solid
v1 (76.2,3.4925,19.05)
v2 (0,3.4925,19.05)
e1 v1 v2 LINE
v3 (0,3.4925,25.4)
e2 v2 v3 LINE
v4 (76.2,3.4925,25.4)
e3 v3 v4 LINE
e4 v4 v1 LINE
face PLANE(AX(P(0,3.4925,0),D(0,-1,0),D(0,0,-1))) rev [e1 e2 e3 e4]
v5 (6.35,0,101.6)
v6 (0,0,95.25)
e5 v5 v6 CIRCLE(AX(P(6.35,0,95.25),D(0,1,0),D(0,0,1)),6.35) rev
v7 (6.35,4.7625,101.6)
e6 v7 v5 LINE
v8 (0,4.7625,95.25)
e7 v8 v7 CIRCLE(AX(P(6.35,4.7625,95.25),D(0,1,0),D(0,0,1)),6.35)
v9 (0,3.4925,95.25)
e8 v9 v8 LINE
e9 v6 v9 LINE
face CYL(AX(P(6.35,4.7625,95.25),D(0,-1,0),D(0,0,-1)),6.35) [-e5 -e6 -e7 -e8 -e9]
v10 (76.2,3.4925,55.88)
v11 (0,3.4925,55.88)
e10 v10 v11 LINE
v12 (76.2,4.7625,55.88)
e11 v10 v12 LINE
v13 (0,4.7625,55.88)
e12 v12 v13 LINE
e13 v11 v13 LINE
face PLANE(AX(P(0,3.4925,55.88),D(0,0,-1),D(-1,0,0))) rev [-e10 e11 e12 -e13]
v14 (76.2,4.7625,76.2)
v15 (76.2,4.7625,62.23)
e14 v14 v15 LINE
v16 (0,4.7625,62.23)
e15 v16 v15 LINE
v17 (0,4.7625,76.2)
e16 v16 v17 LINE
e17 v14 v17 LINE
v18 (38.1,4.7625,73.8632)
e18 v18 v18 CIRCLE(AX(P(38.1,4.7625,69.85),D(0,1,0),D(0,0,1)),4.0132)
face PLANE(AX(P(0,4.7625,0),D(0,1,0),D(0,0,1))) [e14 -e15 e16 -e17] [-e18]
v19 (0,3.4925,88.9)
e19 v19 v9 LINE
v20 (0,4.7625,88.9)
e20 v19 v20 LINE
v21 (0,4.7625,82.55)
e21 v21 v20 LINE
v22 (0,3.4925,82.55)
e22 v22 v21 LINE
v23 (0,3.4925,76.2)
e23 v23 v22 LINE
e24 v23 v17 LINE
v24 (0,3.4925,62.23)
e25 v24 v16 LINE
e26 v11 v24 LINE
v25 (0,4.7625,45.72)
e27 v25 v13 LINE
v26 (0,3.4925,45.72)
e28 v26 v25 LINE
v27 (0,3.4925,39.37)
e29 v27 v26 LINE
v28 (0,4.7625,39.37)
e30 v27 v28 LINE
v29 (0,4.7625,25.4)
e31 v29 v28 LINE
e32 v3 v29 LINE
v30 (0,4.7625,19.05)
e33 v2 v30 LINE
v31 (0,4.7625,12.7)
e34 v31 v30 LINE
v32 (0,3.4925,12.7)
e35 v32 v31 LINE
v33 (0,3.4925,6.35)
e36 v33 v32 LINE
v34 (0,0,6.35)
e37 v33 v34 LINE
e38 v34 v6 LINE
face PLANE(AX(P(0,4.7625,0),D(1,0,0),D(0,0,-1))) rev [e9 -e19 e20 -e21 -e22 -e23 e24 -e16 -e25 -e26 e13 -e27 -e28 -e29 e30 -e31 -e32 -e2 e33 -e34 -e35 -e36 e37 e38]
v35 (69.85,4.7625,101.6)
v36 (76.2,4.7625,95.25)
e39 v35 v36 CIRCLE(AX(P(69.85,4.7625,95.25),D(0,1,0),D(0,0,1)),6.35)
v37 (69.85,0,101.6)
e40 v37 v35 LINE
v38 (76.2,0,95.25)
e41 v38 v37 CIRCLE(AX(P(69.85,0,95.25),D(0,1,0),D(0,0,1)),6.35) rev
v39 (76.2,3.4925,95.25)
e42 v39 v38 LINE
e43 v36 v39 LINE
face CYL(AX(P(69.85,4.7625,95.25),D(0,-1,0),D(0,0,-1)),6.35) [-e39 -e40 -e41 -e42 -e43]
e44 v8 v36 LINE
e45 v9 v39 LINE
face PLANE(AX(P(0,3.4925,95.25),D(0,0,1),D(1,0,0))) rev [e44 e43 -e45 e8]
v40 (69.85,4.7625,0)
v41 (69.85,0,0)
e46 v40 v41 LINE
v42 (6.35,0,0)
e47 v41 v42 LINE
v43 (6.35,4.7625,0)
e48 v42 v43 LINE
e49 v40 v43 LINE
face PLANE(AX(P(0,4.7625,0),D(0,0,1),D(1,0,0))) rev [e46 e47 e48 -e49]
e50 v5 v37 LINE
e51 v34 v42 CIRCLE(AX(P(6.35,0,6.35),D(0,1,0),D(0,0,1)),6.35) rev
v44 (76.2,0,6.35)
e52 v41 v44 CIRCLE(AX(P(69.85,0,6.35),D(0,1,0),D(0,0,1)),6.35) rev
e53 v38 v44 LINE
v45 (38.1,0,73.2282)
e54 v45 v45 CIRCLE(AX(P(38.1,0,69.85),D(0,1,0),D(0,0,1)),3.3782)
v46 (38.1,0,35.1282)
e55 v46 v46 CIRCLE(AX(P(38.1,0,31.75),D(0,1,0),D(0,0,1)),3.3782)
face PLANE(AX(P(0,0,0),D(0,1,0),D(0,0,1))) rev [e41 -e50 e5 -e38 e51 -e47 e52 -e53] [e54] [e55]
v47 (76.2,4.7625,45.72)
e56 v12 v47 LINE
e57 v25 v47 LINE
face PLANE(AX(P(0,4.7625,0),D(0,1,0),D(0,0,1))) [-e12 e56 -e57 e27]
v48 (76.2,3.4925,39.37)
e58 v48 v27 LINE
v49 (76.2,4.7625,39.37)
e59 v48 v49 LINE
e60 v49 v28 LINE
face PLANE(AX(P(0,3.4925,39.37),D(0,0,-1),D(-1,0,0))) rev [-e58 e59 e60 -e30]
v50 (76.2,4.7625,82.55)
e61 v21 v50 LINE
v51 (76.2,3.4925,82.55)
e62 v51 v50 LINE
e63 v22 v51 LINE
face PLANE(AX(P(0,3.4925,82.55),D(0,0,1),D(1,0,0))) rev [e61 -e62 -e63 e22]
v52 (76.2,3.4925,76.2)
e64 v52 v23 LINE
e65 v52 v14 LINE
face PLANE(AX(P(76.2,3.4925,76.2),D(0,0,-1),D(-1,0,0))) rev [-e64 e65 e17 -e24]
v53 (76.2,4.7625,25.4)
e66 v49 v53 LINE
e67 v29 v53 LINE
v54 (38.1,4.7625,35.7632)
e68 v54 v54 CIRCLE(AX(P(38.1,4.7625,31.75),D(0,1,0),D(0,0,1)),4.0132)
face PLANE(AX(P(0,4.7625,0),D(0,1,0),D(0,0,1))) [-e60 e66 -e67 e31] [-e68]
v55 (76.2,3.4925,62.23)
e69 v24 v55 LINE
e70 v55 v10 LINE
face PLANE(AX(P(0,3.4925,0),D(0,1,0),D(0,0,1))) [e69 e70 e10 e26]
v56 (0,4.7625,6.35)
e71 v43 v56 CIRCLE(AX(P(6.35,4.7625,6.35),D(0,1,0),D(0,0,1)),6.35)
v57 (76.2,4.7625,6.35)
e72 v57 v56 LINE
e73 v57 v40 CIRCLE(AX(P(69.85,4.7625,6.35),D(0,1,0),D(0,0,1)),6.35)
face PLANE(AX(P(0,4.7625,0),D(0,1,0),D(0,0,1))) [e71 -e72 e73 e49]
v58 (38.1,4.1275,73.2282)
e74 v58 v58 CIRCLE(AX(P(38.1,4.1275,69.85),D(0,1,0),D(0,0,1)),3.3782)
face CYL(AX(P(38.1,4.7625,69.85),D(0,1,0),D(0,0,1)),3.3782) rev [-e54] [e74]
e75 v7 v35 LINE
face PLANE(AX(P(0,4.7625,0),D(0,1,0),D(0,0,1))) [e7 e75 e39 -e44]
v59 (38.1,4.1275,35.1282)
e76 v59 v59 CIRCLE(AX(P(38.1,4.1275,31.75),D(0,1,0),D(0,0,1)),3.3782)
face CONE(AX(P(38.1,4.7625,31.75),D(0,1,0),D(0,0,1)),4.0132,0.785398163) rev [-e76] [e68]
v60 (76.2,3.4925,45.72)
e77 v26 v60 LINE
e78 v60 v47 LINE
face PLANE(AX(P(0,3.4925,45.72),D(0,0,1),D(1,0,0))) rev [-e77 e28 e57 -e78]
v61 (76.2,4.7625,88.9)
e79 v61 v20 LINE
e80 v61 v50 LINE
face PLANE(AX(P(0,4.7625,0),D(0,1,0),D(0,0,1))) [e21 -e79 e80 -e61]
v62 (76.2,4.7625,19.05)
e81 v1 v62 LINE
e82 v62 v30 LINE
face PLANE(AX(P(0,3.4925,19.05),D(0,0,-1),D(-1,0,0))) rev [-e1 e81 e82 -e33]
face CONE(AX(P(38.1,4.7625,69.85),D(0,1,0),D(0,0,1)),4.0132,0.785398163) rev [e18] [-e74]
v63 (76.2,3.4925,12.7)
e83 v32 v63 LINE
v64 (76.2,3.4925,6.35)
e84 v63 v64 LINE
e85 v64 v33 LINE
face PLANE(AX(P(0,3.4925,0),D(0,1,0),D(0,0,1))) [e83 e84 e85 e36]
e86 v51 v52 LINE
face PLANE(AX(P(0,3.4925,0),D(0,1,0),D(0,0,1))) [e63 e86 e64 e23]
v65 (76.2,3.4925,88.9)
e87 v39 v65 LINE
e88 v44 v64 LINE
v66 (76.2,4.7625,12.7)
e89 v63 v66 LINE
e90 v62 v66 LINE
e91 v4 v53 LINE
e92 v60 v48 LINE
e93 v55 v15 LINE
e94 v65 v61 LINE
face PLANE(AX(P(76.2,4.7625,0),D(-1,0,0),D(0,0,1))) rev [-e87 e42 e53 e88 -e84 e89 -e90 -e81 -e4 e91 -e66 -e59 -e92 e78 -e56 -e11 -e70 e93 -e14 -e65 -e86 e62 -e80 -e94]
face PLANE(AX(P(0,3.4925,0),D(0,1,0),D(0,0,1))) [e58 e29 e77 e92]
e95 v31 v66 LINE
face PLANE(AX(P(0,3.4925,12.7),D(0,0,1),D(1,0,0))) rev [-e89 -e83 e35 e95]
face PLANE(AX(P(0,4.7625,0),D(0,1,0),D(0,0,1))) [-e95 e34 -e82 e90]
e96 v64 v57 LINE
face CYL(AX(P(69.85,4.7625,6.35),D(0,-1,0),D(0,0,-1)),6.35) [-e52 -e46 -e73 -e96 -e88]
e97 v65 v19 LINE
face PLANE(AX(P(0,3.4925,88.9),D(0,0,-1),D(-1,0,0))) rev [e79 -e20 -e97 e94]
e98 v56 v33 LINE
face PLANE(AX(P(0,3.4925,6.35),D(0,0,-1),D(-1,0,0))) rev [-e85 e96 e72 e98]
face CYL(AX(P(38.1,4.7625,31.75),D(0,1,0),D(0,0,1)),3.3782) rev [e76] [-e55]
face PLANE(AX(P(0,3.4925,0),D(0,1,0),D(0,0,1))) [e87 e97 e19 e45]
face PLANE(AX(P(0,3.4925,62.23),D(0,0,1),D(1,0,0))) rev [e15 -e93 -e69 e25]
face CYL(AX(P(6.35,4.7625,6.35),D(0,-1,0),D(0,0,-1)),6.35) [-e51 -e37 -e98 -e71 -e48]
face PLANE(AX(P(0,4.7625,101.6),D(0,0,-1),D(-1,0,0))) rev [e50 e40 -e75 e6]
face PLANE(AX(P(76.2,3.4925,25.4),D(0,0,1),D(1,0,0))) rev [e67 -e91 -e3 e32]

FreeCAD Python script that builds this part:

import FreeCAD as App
import Part
import Sketcher
Q = App.Units.Quantity


def edges_at(feature, points):
    """Names of the edges that pass closest to the given points."""
    edges = feature.Shape.Edges
    near = lambda p: min(range(len(edges)), key=lambda i: edges[i].distToShape(Part.Vertex(*p))[0])
    return sorted({f"Edge{near(p) + 1}" for p in points})


def add_polygon(sketch, points):
    """Adds a closed chain of lines whose ends are joined by coincident constraints."""
    first, n = sketch.GeometryCount, len(points)
    for a, b in zip(points, points[1:] + points[:1]):
        sketch.addGeometry(Part.LineSegment(App.Vector(*a, 0), App.Vector(*b, 0)), False)
    for i in range(n):
        sketch.addConstraint(Sketcher.Constraint("Coincident", first + i, 2, first + (i + 1) % n, 1))

doc = App.newDocument("Part")
params = doc.addObject("Spreadsheet::Sheet", "Params")
for row, (alias, value) in enumerate([
    ("sketch1_width", "3 in"),
    ("sketch1_height", "4 in"),
    ("pad1_length", "0.1875 in"),
    ("sketch2_diameter", "0.266 in"),
    ("hole_diameter", "0.266 in"),
    ("hole_csink_diameter", "0.316 in"),
    ("fillet_radius", "0.25 in"),
    ("sketch3_width", "3 in"),
    ("sketch3_height", "0.25 in"),
    ("pocket1_length", "0.05 in"),
], start=1):
    params.set(f"A{row}", alias)
    params.set(f"B{row}", "=" + value)
    params.setAlias(f"B{row}", alias)

body = doc.addObject("PartDesign::Body", "Body")

# Sketch on XZ plane
sketch1 = body.newObject("Sketcher::SketchObject", "Sketch")
sketch1.AttachmentSupport = (doc.getObject("XZ_Plane"), [""])
sketch1.MapMode = "FlatFace"
add_polygon(sketch1, [(0, 0), (0, 102), (76, 102), (76, 0)])  # lines 0-3
sketch1.addConstraint(Sketcher.Constraint("Vertical", 0))
sketch1.addConstraint(Sketcher.Constraint("Horizontal", 1))
sketch1.addConstraint(Sketcher.Constraint("Vertical", 2))
sketch1.addConstraint(Sketcher.Constraint("Horizontal", 3))
sketch1.addConstraint(Sketcher.Constraint("Coincident", 3, 2, -1, 1))
sketch1.addConstraint(Sketcher.Constraint("DistanceX", 1, 1, 1, 2, Q("3 in")))
sketch1.addConstraint(Sketcher.Constraint("DistanceY", 0, 1, 0, 2, Q("4 in")))
sketch1.setExpression("Constraints[9]", "Params.sketch1_width")
sketch1.setExpression("Constraints[10]", "Params.sketch1_height")
pad1 = body.newObject("PartDesign::Pad", "Pad")
pad1.Profile = sketch1
pad1.setExpression("Length", "Params.pad1_length")
pad1.Reversed = True

# Sketch on XZ plane
sketch2 = body.newObject("Sketcher::SketchObject", "Sketch001")
sketch2.AttachmentSupport = (doc.getObject("XZ_Plane"), [""])
sketch2.MapMode = "FlatFace"
sketch2.AttachmentOffset = App.Placement(App.Vector(0, 0, -0.1875 * 25.4), App.Rotation())
sketch2.addGeometry(Part.Circle(App.Vector(38.1, 69.8, 0), App.Vector(0, 0, 1), 3.4), False)
sketch2.addGeometry(Part.Circle(App.Vector(38.1, 31.8, 0), App.Vector(0, 0, 1), 3.4), False)
sketch2.addConstraint(Sketcher.Constraint("Equal", 0, 1))
sketch2.addConstraint(Sketcher.Constraint("Vertical", 0, 3, 1, 3))
sketch2.addConstraint(Sketcher.Constraint("Diameter", 0, Q("0.266 in")))
sketch2.addConstraint(Sketcher.Constraint("DistanceX", -1, 1, 0, 3, Q("1.5 in")))
sketch2.addConstraint(Sketcher.Constraint("DistanceY", 1, 3, 0, 3, Q("1.5 in")))
sketch2.addConstraint(Sketcher.Constraint("DistanceY", -1, 1, 0, 3, Q("2.75 in")))
sketch2.setExpression("Constraints[2]", "Params.sketch2_diameter")
doc.recompute()
hole = body.newObject("PartDesign::Hole", "Hole")
hole.Profile = sketch2
hole.ThreadType = "None"
hole.setExpression("Diameter", "Params.hole_diameter")
hole.DepthType = "ThroughAll"
hole.HoleCutType = "Countersink"
hole.setExpression("HoleCutDiameter", "Params.hole_csink_diameter")
hole.HoleCutCountersinkAngle = 90
hole.Reversed = True
doc.recompute()

fillet = body.newObject("PartDesign::Fillet", "Fillet")
fillet.Base = (hole, edges_at(hole, [
    (0, 2.381, 0),
    (76.2, 2.381, 0),
    (76.2, 2.381, 101.6),
    (0, 2.381, 101.6),
]))
fillet.setExpression("Radius", "Params.fillet_radius")

# Sketch on XZ plane
sketch3 = body.newObject("Sketcher::SketchObject", "Sketch002")
sketch3.AttachmentSupport = (doc.getObject("XZ_Plane"), [""])
sketch3.MapMode = "FlatFace"
sketch3.AttachmentOffset = App.Placement(App.Vector(0, 0, -0.1875 * 25.4), App.Rotation())
add_polygon(sketch3, [(0, 6), (0, 13), (76, 13), (76, 6)])  # lines 0-3
add_polygon(sketch3, [(0, 39), (0, 46), (76, 46), (76, 39)])  # lines 4-7
add_polygon(sketch3, [(0, 56), (0, 62), (76, 62), (76, 56)])  # lines 8-11
add_polygon(sketch3, [(0, 89), (0, 95), (76, 95), (76, 89)])  # lines 12-15
add_polygon(sketch3, [(0, 76), (0, 83), (76, 83), (76, 76)])  # lines 16-19
add_polygon(sketch3, [(0, 19), (0, 25), (76, 25), (76, 19)])  # lines 20-23
sketch3.addConstraint(Sketcher.Constraint("Vertical", 0))
sketch3.addConstraint(Sketcher.Constraint("Horizontal", 1))
sketch3.addConstraint(Sketcher.Constraint("Vertical", 2))
sketch3.addConstraint(Sketcher.Constraint("Horizontal", 3))
sketch3.addConstraint(Sketcher.Constraint("Vertical", 4))
sketch3.addConstraint(Sketcher.Constraint("Horizontal", 5))
sketch3.addConstraint(Sketcher.Constraint("Vertical", 6))
sketch3.addConstraint(Sketcher.Constraint("Horizontal", 7))
sketch3.addConstraint(Sketcher.Constraint("Vertical", 8))
sketch3.addConstraint(Sketcher.Constraint("Horizontal", 9))
sketch3.addConstraint(Sketcher.Constraint("Vertical", 10))
sketch3.addConstraint(Sketcher.Constraint("Horizontal", 11))
sketch3.addConstraint(Sketcher.Constraint("Vertical", 12))
sketch3.addConstraint(Sketcher.Constraint("Horizontal", 13))
sketch3.addConstraint(Sketcher.Constraint("Vertical", 14))
sketch3.addConstraint(Sketcher.Constraint("Horizontal", 15))
sketch3.addConstraint(Sketcher.Constraint("Vertical", 16))
sketch3.addConstraint(Sketcher.Constraint("Horizontal", 17))
sketch3.addConstraint(Sketcher.Constraint("Vertical", 18))
sketch3.addConstraint(Sketcher.Constraint("Horizontal", 19))
sketch3.addConstraint(Sketcher.Constraint("Vertical", 20))
sketch3.addConstraint(Sketcher.Constraint("Horizontal", 21))
sketch3.addConstraint(Sketcher.Constraint("Vertical", 22))
sketch3.addConstraint(Sketcher.Constraint("Horizontal", 23))
sketch3.addConstraint(Sketcher.Constraint("PointOnObject", 0, 2, -2))
sketch3.addConstraint(Sketcher.Constraint("PointOnObject", 4, 2, -2))
sketch3.addConstraint(Sketcher.Constraint("PointOnObject", 8, 2, -2))
sketch3.addConstraint(Sketcher.Constraint("PointOnObject", 12, 2, -2))
sketch3.addConstraint(Sketcher.Constraint("PointOnObject", 16, 2, -2))
sketch3.addConstraint(Sketcher.Constraint("PointOnObject", 20, 2, -2))
sketch3.addConstraint(Sketcher.Constraint("Vertical", 2, 2, 5, 2))
sketch3.addConstraint(Sketcher.Constraint("Vertical", 6, 2, 9, 2))
sketch3.addConstraint(Sketcher.Constraint("Vertical", 10, 2, 13, 2))
sketch3.addConstraint(Sketcher.Constraint("Vertical", 14, 2, 17, 2))
sketch3.addConstraint(Sketcher.Constraint("Vertical", 18, 2, 21, 2))
sketch3.addConstraint(Sketcher.Constraint("Equal", 2, 4))
sketch3.addConstraint(Sketcher.Constraint("Equal", 6, 8))
sketch3.addConstraint(Sketcher.Constraint("Equal", 10, 12))
sketch3.addConstraint(Sketcher.Constraint("Equal", 14, 16))
sketch3.addConstraint(Sketcher.Constraint("Equal", 18, 20))
sketch3.addConstraint(Sketcher.Constraint("DistanceX", 1, 1, 1, 2, Q("3 in")))
sketch3.addConstraint(Sketcher.Constraint("DistanceY", -1, 1, 18, 2, Q("3 in")))
sketch3.addConstraint(Sketcher.Constraint("DistanceY", -1, 1, 20, 2, Q("1 in")))
sketch3.addConstraint(Sketcher.Constraint("DistanceY", 0, 1, 0, 2, Q("0.25 in")))
sketch3.addConstraint(Sketcher.Constraint("DistanceY", -1, 1, 0, 2, Q("0.5 in")))
sketch3.addConstraint(Sketcher.Constraint("DistanceY", -1, 1, 4, 2, Q("1.8 in")))
sketch3.addConstraint(Sketcher.Constraint("DistanceY", -1, 1, 10, 2, Q("2.2 in")))
sketch3.addConstraint(Sketcher.Constraint("DistanceY", -1, 1, 14, 2, Q("3.5 in")))
sketch3.setExpression("Constraints[64]", "Params.sketch3_width")
sketch3.setExpression("Constraints[67]", "Params.sketch3_height")
pocket1 = body.newObject("PartDesign::Pocket", "Pocket")
pocket1.Profile = sketch3
pocket1.setExpression("Length", "Params.pocket1_length")
pocket1.Reversed = True

doc.recompute()
